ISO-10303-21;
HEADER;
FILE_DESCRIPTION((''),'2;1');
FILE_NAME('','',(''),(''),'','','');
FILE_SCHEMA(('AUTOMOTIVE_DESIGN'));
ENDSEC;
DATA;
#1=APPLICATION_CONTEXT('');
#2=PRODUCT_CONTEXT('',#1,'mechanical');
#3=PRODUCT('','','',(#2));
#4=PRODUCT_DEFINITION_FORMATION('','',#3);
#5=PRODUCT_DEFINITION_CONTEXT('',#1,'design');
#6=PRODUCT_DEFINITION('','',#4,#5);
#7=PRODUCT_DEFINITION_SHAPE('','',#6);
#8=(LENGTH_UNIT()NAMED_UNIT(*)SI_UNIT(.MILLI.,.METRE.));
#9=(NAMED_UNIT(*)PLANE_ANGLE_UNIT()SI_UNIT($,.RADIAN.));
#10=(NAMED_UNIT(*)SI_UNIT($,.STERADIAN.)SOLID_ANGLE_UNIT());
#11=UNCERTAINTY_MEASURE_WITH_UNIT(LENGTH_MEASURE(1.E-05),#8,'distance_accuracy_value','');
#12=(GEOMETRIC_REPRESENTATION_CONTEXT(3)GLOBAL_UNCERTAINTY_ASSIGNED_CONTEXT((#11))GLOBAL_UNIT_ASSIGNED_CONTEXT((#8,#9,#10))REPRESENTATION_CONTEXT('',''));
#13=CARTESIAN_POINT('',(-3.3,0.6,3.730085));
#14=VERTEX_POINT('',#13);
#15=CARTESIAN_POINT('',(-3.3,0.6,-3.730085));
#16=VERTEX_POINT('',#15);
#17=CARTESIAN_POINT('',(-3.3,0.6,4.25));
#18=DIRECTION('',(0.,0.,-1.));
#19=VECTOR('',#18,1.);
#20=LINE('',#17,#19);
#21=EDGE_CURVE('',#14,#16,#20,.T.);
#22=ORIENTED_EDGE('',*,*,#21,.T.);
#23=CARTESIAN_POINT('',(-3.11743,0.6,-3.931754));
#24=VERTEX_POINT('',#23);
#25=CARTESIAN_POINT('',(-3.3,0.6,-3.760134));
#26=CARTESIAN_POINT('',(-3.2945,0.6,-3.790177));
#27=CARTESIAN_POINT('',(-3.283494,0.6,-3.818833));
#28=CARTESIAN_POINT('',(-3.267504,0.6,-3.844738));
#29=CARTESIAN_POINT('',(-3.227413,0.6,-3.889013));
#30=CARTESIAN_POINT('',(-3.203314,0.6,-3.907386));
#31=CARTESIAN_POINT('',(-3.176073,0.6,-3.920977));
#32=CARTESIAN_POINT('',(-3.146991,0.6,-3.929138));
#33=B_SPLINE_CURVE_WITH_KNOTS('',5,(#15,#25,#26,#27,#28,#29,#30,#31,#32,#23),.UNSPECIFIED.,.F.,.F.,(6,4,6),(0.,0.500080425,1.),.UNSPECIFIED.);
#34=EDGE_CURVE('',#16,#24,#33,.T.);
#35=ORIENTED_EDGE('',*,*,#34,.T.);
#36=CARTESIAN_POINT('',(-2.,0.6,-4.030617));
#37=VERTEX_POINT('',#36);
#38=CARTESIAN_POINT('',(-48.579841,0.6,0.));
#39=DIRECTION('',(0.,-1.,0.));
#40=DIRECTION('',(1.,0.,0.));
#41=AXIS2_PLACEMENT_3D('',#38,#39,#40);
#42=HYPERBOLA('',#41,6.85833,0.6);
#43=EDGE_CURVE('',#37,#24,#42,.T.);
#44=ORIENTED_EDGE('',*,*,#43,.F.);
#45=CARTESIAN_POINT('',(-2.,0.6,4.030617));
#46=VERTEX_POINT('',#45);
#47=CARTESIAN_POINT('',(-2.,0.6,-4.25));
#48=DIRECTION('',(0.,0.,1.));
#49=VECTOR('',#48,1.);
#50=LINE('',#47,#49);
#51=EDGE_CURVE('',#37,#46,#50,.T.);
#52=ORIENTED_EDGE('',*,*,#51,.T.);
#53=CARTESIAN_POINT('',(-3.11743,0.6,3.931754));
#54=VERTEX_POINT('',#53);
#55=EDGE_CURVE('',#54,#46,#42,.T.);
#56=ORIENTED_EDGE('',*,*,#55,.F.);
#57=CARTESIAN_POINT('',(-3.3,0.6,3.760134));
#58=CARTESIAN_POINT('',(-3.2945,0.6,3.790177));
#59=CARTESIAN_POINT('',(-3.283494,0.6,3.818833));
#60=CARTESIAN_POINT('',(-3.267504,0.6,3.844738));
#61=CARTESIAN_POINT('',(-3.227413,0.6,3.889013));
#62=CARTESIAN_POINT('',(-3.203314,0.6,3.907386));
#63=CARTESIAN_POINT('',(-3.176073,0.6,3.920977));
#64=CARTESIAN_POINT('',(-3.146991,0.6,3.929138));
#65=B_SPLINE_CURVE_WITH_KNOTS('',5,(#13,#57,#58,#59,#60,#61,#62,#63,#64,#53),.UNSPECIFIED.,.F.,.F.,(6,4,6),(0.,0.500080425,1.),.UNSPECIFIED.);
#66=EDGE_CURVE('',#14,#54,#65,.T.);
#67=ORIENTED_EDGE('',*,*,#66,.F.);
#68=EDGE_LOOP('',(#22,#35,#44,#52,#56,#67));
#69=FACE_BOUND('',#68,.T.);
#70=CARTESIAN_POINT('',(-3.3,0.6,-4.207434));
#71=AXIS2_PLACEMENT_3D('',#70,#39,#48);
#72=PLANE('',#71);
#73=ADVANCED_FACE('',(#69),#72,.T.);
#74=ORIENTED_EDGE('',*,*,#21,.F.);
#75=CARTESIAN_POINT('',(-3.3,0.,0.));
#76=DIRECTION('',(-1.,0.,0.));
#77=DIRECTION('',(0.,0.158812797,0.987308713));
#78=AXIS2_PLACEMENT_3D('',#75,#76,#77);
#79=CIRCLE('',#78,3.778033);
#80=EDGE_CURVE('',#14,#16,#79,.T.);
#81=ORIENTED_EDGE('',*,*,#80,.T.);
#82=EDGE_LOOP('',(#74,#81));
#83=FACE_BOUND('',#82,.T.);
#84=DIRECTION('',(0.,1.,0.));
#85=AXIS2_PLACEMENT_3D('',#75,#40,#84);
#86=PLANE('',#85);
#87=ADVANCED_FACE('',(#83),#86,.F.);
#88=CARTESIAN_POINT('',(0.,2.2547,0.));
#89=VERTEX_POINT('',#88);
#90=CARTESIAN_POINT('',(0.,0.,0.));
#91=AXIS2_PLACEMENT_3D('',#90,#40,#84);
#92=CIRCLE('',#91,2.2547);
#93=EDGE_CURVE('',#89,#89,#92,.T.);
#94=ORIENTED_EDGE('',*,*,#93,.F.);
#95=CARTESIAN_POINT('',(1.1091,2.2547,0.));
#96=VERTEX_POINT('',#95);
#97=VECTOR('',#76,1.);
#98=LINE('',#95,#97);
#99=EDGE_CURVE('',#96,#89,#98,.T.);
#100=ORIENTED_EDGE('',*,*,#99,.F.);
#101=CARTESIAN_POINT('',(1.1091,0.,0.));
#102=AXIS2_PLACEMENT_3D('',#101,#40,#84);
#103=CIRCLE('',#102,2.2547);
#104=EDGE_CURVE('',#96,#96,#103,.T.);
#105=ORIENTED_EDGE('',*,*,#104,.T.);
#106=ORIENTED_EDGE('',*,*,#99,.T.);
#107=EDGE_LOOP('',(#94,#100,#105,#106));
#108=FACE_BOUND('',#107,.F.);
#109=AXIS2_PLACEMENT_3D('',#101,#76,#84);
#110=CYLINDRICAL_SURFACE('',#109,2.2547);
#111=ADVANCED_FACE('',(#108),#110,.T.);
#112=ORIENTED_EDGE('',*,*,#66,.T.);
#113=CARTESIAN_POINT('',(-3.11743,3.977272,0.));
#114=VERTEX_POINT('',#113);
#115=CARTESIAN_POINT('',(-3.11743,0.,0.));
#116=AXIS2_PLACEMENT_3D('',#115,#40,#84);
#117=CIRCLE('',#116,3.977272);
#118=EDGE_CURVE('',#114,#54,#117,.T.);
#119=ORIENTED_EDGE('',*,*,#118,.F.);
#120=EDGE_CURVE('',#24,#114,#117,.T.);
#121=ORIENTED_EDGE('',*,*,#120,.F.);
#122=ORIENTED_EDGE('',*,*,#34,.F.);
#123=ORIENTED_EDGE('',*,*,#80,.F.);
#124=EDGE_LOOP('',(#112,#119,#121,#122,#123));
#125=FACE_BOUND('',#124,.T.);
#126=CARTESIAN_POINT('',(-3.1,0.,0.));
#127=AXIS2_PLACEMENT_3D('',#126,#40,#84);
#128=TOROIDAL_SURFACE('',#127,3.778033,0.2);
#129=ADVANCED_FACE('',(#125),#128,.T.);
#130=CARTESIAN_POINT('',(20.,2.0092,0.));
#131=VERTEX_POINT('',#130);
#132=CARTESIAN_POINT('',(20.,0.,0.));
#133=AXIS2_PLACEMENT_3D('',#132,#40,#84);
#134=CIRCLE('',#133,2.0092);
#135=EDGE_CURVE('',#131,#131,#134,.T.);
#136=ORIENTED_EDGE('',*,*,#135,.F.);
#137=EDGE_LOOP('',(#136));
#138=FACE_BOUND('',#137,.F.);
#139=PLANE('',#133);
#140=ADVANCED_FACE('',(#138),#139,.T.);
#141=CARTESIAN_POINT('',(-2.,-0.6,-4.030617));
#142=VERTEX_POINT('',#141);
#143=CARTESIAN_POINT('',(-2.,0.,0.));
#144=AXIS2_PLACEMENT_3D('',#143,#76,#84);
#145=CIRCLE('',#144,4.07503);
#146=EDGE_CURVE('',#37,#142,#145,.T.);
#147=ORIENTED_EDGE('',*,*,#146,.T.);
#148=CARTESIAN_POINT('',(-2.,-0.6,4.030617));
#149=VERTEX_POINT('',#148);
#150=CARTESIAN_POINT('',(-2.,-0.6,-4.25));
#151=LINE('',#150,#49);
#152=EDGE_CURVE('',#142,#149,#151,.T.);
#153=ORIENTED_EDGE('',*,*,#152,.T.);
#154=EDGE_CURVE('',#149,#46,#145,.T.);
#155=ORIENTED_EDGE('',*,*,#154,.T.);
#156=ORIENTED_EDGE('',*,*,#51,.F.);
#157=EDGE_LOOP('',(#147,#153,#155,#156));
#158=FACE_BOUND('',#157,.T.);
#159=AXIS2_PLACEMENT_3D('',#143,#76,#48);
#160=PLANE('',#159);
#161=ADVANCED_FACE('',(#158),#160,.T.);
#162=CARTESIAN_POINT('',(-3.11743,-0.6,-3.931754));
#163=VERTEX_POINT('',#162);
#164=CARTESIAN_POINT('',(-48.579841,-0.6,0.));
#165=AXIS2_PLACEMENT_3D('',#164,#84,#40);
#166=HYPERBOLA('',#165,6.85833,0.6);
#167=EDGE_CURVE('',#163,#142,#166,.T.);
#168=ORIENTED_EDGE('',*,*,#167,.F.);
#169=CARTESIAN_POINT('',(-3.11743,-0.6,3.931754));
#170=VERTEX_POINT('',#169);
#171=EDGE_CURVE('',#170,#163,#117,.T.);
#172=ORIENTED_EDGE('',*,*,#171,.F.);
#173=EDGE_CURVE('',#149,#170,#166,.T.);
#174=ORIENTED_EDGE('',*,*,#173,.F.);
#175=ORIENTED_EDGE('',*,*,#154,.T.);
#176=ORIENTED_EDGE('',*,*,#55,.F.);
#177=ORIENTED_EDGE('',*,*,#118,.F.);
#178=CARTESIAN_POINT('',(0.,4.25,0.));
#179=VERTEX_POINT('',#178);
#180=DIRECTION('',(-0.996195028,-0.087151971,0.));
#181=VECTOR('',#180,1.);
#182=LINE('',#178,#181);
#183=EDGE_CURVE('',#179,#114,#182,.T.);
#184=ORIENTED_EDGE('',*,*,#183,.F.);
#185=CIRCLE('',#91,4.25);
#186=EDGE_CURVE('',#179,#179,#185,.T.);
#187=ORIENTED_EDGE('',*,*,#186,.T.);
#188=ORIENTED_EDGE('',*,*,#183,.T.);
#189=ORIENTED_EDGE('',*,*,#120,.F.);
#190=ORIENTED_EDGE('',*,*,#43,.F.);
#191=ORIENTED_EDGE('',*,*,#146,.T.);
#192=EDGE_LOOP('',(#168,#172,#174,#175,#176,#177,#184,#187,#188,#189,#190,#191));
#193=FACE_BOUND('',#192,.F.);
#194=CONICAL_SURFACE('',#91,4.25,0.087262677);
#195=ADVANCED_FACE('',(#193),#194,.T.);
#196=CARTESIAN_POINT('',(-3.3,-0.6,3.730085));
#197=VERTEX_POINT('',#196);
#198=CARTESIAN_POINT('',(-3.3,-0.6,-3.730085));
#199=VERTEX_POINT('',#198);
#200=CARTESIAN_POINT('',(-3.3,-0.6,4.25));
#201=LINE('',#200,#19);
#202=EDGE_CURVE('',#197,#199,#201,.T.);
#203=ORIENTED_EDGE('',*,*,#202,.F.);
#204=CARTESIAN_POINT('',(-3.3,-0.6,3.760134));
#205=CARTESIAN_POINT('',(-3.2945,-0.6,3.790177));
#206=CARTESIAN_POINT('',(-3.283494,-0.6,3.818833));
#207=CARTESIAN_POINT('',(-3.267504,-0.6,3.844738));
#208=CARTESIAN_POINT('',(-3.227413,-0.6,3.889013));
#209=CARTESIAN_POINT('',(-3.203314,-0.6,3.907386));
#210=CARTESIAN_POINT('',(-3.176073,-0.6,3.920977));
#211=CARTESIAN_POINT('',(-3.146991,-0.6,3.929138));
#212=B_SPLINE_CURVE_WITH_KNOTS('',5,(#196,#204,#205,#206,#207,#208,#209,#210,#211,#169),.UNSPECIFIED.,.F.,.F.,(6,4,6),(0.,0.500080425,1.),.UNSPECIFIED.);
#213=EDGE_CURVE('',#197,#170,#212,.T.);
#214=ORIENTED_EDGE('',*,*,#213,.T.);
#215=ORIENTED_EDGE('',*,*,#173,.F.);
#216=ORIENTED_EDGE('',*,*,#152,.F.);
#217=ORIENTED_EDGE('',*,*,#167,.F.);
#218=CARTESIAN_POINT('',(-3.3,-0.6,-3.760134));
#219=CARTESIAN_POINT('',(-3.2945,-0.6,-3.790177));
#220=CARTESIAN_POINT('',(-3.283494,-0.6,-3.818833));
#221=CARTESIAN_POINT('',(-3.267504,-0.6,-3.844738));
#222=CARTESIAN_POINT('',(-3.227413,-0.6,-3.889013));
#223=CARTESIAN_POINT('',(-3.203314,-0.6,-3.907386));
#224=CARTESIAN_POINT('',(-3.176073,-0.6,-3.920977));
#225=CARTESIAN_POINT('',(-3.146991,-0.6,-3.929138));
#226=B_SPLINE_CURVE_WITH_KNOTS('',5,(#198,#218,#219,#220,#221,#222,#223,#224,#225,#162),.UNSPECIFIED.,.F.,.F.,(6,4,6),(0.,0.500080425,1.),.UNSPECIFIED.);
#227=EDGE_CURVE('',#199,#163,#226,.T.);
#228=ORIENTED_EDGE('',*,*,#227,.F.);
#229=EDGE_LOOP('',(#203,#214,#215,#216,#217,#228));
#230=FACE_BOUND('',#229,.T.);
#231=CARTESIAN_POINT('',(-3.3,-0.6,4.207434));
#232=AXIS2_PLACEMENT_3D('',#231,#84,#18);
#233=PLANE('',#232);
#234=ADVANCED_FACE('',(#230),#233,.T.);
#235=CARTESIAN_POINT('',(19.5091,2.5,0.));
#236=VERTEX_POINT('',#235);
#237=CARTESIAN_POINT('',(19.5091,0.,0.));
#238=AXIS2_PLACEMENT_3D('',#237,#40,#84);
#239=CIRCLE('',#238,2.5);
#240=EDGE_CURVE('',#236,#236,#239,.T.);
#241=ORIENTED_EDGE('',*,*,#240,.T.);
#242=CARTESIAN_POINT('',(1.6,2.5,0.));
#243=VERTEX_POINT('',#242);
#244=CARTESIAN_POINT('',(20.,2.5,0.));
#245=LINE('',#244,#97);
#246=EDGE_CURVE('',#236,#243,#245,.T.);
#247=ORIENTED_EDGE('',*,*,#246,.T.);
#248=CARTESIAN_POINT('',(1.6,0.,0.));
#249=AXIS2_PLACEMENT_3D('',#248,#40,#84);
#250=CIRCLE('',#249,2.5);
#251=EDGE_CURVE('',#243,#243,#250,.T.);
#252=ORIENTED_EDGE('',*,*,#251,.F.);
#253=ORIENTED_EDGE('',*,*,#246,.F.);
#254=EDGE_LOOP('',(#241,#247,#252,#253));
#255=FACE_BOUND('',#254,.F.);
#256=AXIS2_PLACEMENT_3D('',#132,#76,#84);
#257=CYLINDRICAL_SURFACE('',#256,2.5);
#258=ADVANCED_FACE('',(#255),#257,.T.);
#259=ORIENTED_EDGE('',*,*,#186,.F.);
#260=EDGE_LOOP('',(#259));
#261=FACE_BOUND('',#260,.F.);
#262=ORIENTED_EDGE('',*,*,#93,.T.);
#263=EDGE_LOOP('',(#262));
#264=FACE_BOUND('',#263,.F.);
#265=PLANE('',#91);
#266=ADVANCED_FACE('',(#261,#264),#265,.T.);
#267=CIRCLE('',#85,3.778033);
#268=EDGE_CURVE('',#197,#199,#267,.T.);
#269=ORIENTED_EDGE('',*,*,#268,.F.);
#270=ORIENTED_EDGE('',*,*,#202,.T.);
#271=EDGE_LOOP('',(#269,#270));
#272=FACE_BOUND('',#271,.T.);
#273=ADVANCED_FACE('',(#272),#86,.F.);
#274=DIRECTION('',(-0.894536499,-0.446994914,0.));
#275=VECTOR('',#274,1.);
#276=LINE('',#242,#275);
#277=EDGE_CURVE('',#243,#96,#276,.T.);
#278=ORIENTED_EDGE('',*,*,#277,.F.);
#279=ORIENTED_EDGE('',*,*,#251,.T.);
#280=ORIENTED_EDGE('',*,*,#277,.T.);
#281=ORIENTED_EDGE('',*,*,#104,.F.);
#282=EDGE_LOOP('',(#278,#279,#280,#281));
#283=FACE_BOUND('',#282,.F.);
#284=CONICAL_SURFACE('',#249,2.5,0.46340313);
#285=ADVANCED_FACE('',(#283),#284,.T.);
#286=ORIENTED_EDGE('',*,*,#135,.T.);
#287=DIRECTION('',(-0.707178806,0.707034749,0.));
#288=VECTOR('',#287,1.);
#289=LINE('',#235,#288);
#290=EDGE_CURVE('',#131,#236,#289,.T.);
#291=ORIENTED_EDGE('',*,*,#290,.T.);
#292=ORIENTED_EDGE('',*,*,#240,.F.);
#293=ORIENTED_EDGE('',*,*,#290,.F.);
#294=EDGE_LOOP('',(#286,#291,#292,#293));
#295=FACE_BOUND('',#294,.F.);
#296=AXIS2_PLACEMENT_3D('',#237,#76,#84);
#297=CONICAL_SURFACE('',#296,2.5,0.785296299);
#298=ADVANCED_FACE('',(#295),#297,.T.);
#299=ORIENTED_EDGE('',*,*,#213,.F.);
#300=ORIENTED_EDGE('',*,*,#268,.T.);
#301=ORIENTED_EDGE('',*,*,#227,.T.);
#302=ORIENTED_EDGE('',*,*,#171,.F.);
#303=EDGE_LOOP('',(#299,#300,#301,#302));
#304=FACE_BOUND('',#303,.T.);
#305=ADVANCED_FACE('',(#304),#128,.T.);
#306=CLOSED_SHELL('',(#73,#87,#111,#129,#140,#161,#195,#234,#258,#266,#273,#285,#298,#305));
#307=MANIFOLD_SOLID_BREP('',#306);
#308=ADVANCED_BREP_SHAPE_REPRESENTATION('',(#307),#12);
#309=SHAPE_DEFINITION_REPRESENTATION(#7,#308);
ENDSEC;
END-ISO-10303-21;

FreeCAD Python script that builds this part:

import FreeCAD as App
import Part
import Sketcher
Q = App.Units.Quantity


def edges_at(feature, points):
    """Names of the edges that pass closest to the given points."""
    edges = feature.Shape.Edges
    near = lambda p: min(range(len(edges)), key=lambda i: edges[i].distToShape(Part.Vertex(*p))[0])
    return sorted({f"Edge{near(p) + 1}" for p in points})


def add_polygon(sketch, points):
    """Adds a closed chain of lines whose ends are joined by coincident constraints."""
    first, n = sketch.GeometryCount, len(points)
    for a, b in zip(points, points[1:] + points[:1]):
        sketch.addGeometry(Part.LineSegment(App.Vector(*a, 0), App.Vector(*b, 0)), False)
    for i in range(n):
        sketch.addConstraint(Sketcher.Constraint("Coincident", first + i, 2, first + (i + 1) % n, 1))

doc = App.newDocument("Part")
body = doc.addObject("PartDesign::Body", "Body")

# Sketch on XY plane
sketch1 = body.newObject("Sketcher::SketchObject", "Sketch")
sketch1.AttachmentSupport = (doc.getObject("XY_Plane"), [""])
sketch1.MapMode = "FlatFace"
add_polygon(sketch1, [(-3.3, 4), (-3.3, 0), (20, 0), (20, 2.5), (1.6, 2.5), (1.1, 2.3), (0, 2.3), (0, 4.2)])  # lines 0-7
sketch1.addConstraint([
    Sketcher.Constraint("Vertical", 0),
    Sketcher.Constraint("Horizontal", 1),
    Sketcher.Constraint("Vertical", 2),
    Sketcher.Constraint("Horizontal", 3),
    Sketcher.Constraint("Horizontal", 5),
    Sketcher.Constraint("Vertical", 6),
    Sketcher.Constraint("PointOnObject", 0, 2, -1),
    Sketcher.Constraint("PointOnObject", 5, 2, -2),
    Sketcher.Constraint("DistanceX", 3, 2, 3, 1, Q("18.4 mm")),
    Sketcher.Constraint("DistanceX", -1, 1, 1, 2, Q("20 mm")),
    Sketcher.Constraint("DistanceX", 0, 2, -1, 1, Q("3.3 mm")),
    Sketcher.Constraint("Angle", 7, Q("-175.0002 deg")),
    Sketcher.Constraint("DistanceY", 2, 1, 2, 2, Q("2.5 mm")),
    Sketcher.Constraint("DistanceX", 4, 2, 3, 2, Q("0.491 mm")),
    Sketcher.Constraint("Angle", 4, Q("-153.449 deg")),
    Sketcher.Constraint("DistanceY", -1, 1, 6, 2, Q("4.25 mm")),
])
revolution = body.newObject("PartDesign::Revolution", "Revolution")
revolution.Profile = sketch1
revolution.ReferenceAxis = (sketch1, ["H_Axis"])
revolution.Angle = 360
doc.recompute()

fillet = body.newObject("PartDesign::Fillet", "Fillet")
fillet.Base = (revolution, edges_at(revolution, [(-3.3, -3.961, 0)]))
fillet.Radius = 0.2

# Sketch on YZ plane
sketch2 = body.newObject("Sketcher::SketchObject", "Sketch001")
sketch2.AttachmentSupport = (doc.getObject("YZ_Plane"), [""])
sketch2.MapMode = "FlatFace"
sketch2.AttachmentOffset = App.Placement(App.Vector(0, 0, -3.3), App.Rotation())
add_polygon(sketch2, [(-0.6, 4.2), (0.6, 4.2), (0.6, -4.2), (-0.6, -4.2)])  # lines 0-3
sketch2.addConstraint([
    Sketcher.Constraint("Horizontal", 0),
    Sketcher.Constraint("Vertical", 1),
    Sketcher.Constraint("Horizontal", 2),
    Sketcher.Constraint("Vertical", 3),
    Sketcher.Constraint("Symmetric", 0, 2, 2, 2, -1, 1),
    Sketcher.Constraint("DistanceX", 0, 1, 0, 2, Q("1.2 mm")),
    Sketcher.Constraint("DistanceY", 1, 2, 1, 1, Q("8.5 mm")),
])
pocket1 = body.newObject("PartDesign::Pocket", "Pocket")
pocket1.Profile = sketch2
pocket1.Length = 1.3
pocket1.Reversed = True
doc.recompute()

chamfer = body.newObject("PartDesign::Chamfer", "Chamfer")
chamfer.Base = (pocket1, edges_at(pocket1, [(20, -2.5, 0)]))
chamfer.ChamferType = "Two distances"
chamfer.Size = 0.4908
chamfer.Size2 = 0.4909

doc.recompute()
